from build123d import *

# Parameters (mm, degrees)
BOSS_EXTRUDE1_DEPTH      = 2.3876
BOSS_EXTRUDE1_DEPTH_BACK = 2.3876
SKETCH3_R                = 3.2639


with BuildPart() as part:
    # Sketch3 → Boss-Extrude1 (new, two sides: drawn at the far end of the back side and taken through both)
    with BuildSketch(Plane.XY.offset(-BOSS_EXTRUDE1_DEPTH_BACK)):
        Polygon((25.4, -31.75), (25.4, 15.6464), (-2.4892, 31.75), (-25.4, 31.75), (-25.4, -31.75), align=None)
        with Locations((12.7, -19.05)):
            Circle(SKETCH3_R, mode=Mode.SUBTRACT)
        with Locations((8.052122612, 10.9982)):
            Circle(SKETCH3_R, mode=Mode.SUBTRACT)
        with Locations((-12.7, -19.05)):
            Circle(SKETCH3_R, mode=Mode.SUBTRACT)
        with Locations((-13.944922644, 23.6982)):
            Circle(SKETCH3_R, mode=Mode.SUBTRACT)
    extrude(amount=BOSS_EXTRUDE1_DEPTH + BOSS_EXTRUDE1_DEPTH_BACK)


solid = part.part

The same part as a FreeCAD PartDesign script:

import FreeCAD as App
import Part
import Sketcher

V = App.Vector
Q = App.Units.Quantity

doc = App.newDocument("Part")
params = doc.addObject("Spreadsheet::Sheet", "Params")
for row, (alias, value) in enumerate([
    ("sketch1_width", "2 in"),
    ("sketch1_diameter", "0.257 in"),
    ("sketch1_height", "2.5 in"),
    ("sketch1_width2", "0.902 in"),
    ("sketch1_height2", "1.866 in"),
    ("pad1_length", "0.094 in"),
    ("pad1_length2", "0.094 in"),
], start=1):
    params.set(f"A{row}", alias)
    params.set(f"B{row}", "=" + value)
    params.setAlias(f"B{row}", alias)

body = doc.addObject("PartDesign::Body", "Body")

sketch1 = body.newObject("Sketcher::SketchObject", "Sketch")
sketch1.AttachmentSupport = (doc.getObject("XY_Plane"), [""])
sketch1.MapMode = "FlatFace"
sketch1.addGeometry([
    Part.LineSegment(V(25.4, -31.8, 0), V(25.4, 15.6, 0)),
    Part.LineSegment(V(25.4, 15.6, 0), V(-2.5, 31.8, 0)),
    Part.LineSegment(V(-2.5, 31.8, 0), V(-25.4, 31.8, 0)),
    Part.LineSegment(V(-25.4, 31.8, 0), V(-25.4, -31.8, 0)),
    Part.LineSegment(V(-25.4, -31.8, 0), V(25.4, -31.8, 0)),
    Part.Circle(V(-12.7, -19.1, 0), V(0, 0, 1), 3.3),
    Part.Circle(V(12.7, -19.1, 0), V(0, 0, 1), 3.3),
    Part.Circle(V(-13.9, 23.7, 0), V(0, 0, 1), 3.3),
    Part.Circle(V(8.1, 11, 0), V(0, 0, 1), 3.3),
], False)
sketch1.addConstraint([
    Sketcher.Constraint("Coincident", 0, 2, 1, 1),
    Sketcher.Constraint("Coincident", 1, 2, 2, 1),
    Sketcher.Constraint("Coincident", 2, 2, 3, 1),
    Sketcher.Constraint("Coincident", 3, 2, 4, 1),
    Sketcher.Constraint("Coincident", 4, 2, 0, 1),
    Sketcher.Constraint("Vertical", 0),
    Sketcher.Constraint("Horizontal", 2),
    Sketcher.Constraint("Vertical", 3),
    Sketcher.Constraint("Horizontal", 4),
    Sketcher.Constraint("Equal", 5, 6),
    Sketcher.Constraint("Equal", 6, 7),
    Sketcher.Constraint("Equal", 7, 8),
    Sketcher.Constraint("Symmetric", 2, 2, 4, 2, -1, 1),
    Sketcher.Constraint("Symmetric", 5, 3, 6, 3, -2),
    Sketcher.Constraint("DistanceX", 4, 1, 4, 2, Q("2 in")),
    Sketcher.Constraint("Diameter", 5, Q("0.257 in")),
    Sketcher.Constraint("DistanceY", 3, 2, 3, 1, Q("2.5 in")),
    Sketcher.Constraint("DistanceX", 5, 3, 6, 3, Q("1 in")),
    Sketcher.Constraint("DistanceY", 5, 3, 1, 2, Q("2 in")),
    Sketcher.Constraint("DistanceY", 8, 3, 7, 3, Q("0.5 in")),
    Sketcher.Constraint("DistanceX", 2, 2, 2, 1, Q("0.902 in")),
    Sketcher.Constraint("DistanceY", 0, 1, 0, 2, Q("1.866 in")),
    Sketcher.Constraint("DistanceY", -1, 1, 7, 3, Q("0.933 in")),
    Sketcher.Constraint("DistanceX", 7, 3, -1, 1, Q("13.944923 mm")),
    Sketcher.Constraint("DistanceX", -1, 1, 8, 3, Q("8.052123 mm")),
])
sketch1.setExpression("Constraints[14]", "Params.sketch1_width")
sketch1.setExpression("Constraints[15]", "Params.sketch1_diameter")
sketch1.setExpression("Constraints[16]", "Params.sketch1_height")
sketch1.setExpression("Constraints[20]", "Params.sketch1_width2")
sketch1.setExpression("Constraints[21]", "Params.sketch1_height2")
pad1 = body.newObject("PartDesign::Pad", "Pad")
pad1.Profile = sketch1
pad1.Type = "TwoLengths"
pad1.setExpression("Length", "Params.pad1_length")
pad1.setExpression("Length2", "Params.pad1_length2")

doc.recompute()
